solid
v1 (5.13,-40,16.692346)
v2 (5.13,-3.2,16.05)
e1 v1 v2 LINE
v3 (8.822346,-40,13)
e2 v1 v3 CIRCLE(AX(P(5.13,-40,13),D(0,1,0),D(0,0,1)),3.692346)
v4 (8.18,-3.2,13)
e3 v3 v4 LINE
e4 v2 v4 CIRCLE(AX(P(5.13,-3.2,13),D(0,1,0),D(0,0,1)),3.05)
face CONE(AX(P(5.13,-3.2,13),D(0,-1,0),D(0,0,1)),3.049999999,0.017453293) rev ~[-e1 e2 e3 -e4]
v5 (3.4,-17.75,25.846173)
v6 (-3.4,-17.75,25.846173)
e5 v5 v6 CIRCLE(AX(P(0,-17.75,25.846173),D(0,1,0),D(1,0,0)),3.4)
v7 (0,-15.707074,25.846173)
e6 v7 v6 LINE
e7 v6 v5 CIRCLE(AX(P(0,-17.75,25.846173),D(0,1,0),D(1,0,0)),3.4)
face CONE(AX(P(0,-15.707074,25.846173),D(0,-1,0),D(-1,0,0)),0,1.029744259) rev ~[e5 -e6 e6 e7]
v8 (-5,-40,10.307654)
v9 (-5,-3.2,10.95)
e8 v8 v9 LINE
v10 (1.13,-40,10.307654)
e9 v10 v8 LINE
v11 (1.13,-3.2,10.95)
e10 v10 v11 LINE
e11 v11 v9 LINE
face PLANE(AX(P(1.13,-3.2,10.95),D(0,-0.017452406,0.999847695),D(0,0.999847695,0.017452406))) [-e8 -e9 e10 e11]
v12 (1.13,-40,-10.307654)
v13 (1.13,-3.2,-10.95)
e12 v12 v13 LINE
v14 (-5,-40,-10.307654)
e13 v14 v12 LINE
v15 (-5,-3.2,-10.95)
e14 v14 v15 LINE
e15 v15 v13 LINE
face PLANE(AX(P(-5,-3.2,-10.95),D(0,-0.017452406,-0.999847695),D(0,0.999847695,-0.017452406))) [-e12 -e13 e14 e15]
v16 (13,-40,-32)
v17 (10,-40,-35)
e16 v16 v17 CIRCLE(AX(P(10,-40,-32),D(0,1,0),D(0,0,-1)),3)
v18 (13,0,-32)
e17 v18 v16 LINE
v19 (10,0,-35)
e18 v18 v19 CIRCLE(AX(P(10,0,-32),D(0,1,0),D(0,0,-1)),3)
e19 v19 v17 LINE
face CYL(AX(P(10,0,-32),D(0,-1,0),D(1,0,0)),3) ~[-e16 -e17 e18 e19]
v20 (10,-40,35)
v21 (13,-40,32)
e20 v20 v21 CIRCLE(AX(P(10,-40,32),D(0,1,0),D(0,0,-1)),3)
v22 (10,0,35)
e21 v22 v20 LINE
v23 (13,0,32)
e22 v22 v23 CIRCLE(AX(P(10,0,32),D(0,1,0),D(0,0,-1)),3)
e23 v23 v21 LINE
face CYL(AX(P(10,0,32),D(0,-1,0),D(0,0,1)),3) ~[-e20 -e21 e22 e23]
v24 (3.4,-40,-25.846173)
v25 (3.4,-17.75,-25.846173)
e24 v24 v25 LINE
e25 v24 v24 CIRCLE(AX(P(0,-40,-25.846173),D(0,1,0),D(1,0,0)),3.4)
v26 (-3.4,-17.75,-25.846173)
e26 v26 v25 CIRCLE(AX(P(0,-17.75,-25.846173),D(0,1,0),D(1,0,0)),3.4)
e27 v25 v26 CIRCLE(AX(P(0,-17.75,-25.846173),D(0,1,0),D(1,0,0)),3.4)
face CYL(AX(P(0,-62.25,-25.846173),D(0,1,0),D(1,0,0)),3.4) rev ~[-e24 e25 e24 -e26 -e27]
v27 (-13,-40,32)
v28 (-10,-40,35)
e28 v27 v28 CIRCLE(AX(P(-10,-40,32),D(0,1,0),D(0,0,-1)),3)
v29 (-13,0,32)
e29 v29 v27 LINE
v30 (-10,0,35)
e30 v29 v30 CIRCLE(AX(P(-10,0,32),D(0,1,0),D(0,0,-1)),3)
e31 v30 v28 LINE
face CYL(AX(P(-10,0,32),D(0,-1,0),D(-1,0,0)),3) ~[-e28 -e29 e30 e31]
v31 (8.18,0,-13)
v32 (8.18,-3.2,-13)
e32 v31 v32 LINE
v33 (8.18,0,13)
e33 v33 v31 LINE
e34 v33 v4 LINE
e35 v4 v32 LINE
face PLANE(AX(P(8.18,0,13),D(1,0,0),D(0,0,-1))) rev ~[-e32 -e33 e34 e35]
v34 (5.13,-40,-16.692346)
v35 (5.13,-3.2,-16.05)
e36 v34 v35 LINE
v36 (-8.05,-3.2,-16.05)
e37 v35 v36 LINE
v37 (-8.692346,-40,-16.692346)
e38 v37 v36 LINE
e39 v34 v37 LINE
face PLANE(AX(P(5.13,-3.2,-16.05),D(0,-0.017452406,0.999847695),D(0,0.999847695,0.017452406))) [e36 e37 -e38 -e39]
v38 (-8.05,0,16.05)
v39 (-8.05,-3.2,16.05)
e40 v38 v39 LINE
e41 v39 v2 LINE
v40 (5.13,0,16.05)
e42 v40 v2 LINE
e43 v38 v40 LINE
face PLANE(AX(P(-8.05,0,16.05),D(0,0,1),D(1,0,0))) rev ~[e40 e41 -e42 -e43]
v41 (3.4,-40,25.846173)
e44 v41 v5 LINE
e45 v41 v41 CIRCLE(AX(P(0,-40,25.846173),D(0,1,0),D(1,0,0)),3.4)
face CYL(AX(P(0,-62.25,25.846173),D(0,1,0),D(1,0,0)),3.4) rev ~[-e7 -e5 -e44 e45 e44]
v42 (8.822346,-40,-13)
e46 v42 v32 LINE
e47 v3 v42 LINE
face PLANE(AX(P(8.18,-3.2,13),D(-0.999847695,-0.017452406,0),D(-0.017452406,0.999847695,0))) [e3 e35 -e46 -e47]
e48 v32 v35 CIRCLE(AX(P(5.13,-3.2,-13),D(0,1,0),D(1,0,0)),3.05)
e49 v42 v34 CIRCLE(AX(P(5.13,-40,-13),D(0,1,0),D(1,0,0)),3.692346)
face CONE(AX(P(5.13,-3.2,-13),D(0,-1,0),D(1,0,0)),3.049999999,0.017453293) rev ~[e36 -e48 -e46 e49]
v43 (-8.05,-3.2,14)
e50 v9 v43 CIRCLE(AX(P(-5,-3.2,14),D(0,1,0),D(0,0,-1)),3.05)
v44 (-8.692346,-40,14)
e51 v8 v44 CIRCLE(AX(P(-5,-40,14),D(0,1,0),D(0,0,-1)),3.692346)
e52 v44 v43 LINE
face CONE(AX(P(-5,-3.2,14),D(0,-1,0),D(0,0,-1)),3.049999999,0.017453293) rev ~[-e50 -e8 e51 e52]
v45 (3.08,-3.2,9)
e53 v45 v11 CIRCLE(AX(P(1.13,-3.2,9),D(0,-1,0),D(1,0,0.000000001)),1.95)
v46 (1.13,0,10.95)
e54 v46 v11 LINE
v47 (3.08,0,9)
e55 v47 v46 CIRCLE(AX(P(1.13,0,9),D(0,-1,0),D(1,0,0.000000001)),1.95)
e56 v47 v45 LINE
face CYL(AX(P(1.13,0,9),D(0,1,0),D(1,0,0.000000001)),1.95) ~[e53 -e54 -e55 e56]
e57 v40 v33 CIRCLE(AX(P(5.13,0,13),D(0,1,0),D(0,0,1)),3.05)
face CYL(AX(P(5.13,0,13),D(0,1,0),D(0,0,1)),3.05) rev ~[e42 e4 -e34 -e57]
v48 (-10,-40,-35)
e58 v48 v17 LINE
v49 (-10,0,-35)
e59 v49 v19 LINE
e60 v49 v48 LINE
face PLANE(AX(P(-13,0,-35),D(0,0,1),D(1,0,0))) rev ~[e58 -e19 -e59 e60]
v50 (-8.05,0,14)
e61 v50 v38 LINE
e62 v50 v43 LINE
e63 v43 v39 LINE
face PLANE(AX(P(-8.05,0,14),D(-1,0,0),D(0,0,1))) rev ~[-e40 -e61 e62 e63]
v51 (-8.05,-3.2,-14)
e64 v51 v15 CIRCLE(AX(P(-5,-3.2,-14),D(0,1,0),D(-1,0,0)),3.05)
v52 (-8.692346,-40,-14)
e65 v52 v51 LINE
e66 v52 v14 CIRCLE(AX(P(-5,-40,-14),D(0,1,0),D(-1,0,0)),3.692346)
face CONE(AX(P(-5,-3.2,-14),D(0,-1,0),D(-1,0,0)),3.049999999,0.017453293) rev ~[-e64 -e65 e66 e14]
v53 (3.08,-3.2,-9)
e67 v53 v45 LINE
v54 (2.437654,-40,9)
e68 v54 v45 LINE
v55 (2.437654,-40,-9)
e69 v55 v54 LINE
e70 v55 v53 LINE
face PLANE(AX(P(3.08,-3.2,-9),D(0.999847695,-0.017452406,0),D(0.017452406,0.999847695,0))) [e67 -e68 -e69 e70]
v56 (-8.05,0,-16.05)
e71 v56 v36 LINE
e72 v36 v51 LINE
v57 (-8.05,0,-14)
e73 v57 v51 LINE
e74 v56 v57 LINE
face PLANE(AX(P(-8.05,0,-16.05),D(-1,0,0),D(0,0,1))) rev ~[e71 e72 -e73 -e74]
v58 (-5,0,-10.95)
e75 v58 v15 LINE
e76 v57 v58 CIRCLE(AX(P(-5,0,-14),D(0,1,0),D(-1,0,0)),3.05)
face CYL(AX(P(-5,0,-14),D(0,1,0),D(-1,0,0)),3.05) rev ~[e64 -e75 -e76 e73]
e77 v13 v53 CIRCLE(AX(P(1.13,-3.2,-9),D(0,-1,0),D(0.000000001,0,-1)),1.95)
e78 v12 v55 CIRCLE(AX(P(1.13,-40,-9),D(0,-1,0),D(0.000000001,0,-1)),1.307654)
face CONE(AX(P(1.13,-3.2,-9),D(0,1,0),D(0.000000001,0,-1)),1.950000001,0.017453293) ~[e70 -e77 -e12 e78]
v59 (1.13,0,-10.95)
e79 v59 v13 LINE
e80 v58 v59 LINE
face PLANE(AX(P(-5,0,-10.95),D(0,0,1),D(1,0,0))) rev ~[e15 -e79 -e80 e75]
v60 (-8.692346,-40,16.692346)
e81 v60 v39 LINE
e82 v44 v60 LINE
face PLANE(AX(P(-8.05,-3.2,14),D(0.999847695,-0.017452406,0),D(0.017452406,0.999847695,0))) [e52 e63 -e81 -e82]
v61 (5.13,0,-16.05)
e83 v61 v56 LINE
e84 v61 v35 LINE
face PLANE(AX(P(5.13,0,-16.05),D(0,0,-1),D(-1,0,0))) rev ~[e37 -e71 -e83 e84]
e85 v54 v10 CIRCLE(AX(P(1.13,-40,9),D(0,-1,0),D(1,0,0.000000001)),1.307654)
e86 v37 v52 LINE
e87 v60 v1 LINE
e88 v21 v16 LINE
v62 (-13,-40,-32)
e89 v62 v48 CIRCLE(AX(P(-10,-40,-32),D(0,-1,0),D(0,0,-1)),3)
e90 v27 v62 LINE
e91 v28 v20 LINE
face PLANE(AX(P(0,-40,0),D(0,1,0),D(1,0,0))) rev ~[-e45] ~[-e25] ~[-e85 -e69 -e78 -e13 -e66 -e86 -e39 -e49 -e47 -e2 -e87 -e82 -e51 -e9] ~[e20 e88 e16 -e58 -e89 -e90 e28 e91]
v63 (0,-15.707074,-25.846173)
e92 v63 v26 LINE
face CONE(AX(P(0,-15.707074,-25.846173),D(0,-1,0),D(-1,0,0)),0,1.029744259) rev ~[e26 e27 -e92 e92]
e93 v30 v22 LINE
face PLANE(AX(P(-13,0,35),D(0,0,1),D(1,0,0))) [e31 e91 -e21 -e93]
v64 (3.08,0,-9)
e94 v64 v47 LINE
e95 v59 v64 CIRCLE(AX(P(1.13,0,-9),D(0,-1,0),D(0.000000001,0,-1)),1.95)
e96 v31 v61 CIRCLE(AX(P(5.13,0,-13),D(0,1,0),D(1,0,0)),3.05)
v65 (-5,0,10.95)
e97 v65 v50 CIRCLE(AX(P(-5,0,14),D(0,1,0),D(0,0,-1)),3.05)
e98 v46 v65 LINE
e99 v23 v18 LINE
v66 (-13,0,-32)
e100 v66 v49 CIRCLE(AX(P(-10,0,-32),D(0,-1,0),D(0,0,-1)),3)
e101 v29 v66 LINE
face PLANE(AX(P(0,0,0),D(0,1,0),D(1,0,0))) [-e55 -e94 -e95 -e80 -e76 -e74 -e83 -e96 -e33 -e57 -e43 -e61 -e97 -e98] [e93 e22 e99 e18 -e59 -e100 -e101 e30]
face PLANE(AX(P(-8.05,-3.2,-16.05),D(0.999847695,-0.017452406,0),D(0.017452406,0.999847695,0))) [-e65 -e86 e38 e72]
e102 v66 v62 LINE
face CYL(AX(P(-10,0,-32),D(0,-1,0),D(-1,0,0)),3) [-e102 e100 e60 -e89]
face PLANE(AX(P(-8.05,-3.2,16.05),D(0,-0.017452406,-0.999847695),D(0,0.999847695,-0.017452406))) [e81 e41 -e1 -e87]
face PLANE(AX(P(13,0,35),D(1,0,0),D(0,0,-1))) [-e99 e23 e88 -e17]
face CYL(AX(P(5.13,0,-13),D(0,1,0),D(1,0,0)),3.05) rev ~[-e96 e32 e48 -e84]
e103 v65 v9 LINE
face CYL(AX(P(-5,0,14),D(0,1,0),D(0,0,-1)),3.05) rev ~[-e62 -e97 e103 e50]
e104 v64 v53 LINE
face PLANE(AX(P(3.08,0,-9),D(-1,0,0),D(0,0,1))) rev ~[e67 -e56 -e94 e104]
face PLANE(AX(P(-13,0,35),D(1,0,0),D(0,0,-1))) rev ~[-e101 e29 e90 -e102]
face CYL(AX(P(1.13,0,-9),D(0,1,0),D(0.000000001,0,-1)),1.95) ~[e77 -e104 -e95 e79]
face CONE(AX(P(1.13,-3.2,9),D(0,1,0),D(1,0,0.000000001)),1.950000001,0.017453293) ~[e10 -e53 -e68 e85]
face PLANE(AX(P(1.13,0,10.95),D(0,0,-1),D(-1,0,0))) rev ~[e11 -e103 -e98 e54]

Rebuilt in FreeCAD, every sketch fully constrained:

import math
import FreeCAD as App
import Part
import Sketcher

V = App.Vector
Q = App.Units.Quantity


def edges_at(feature, points):
    """Names of the edges that pass closest to the given points."""
    edges = feature.Shape.Edges
    near = lambda p: min(range(len(edges)), key=lambda i: edges[i].distToShape(Part.Vertex(*p))[0])
    return sorted({f"Edge{near(p) + 1}" for p in points})


def add_polygon(sketch, points):
    """Adds a closed chain of lines whose ends are joined by coincident constraints."""
    first, n = sketch.GeometryCount, len(points)
    for a, b in zip(points, points[1:] + points[:1]):
        sketch.addGeometry(Part.LineSegment(App.Vector(*a, 0), App.Vector(*b, 0)), False)
    for i in range(n):
        sketch.addConstraint(Sketcher.Constraint("Coincident", first + i, 2, first + (i + 1) % n, 1))

doc = App.newDocument("Part")
params = doc.addObject("Spreadsheet::Sheet", "Params")
for row, (alias, value) in enumerate([
    ("sketch1_width", "26 mm"),
    ("sketch1_height", "70 mm"),
    ("pad1_length", "40 mm"),
    ("fillet_radius", "3 mm"),
    ("sketch2_height", "18 mm"),
    ("sketch2_height2", "26 mm"),
    ("sketch2_radius", "1.95 mm"),
    ("sketch2_radius2", "3.05 mm"),
    ("sketch2_width", "6.13 mm"),
    ("sketch3_height", "36.8 mm"),
    ("sketch4_height", "26 mm"),
    ("sketch4_height2", "18 mm"),
    ("sketch4_radius", "3.05 mm"),
    ("sketch4_radius2", "1.95 mm"),
    ("sketch4_width", "13.18 mm"),
    ("sketch5_diameter", "6.8 mm"),
    ("hole_diameter", "6.8 mm"),
    ("hole_depth", "22.25 mm"),
], start=1):
    params.set(f"A{row}", alias)
    params.set(f"B{row}", "=" + value)
    params.setAlias(f"B{row}", alias)

body = doc.addObject("PartDesign::Body", "Body")

sketch1 = body.newObject("Sketcher::SketchObject", "Sketch")
sketch1.AttachmentSupport = (doc.getObject("XZ_Plane"), [""])
sketch1.MapMode = "FlatFace"
add_polygon(sketch1, [(-13, -35), (-13, 35), (13, 35), (13, -35)])
sketch1.addConstraint([
    Sketcher.Constraint("Vertical", 0),
    Sketcher.Constraint("Horizontal", 1),
    Sketcher.Constraint("Vertical", 2),
    Sketcher.Constraint("Horizontal", 3),
    Sketcher.Constraint("Symmetric", 0, 2, 2, 2, -1, 1),
    Sketcher.Constraint("DistanceX", 1, 1, 1, 2, Q("26 mm")),
    Sketcher.Constraint("DistanceY", 0, 1, 0, 2, Q("70 mm")),
])
sketch1.setExpression("Constraints[9]", "Params.sketch1_width")
sketch1.setExpression("Constraints[10]", "Params.sketch1_height")
pad1 = body.newObject("PartDesign::Pad", "Pad")
pad1.Profile = sketch1
pad1.setExpression("Length", "Params.pad1_length")
doc.recompute()

fillet = body.newObject("PartDesign::Fillet", "Fillet")
fillet.Base = (pad1, edges_at(pad1, [
    (13, -20, 35),
    (-13, -20, 35),
    (-13, -20, -35),
    (13, -20, -35),
]))
fillet.setExpression("Radius", "Params.fillet_radius")

sketch2 = body.newObject("Sketcher::SketchObject", "Sketch001")
sketch2.AttachmentSupport = (doc.getObject("XZ_Plane"), [""])
sketch2.MapMode = "FlatFace"
sketch2.addGeometry([
    Part.LineSegment(V(3.1, -9, 0), V(3.1, 9, 0)),
    Part.ArcOfCircle(Part.Circle(V(1.1, 9, 0), V(0, 0, 1), 2), math.radians(0), math.radians(90)),
    Part.LineSegment(V(1.1, 10.9, 0), V(-5, 10.9, 0)),
    Part.ArcOfCircle(Part.Circle(V(-5, 14, 0), V(0, 0, 1), 3), math.radians(180), math.radians(270)),
    Part.LineSegment(V(-8.1, 14, 0), V(-8.1, 16.1, 0)),
    Part.LineSegment(V(-8.1, 16.1, 0), V(5.1, 16.1, 0)),
    Part.ArcOfCircle(Part.Circle(V(5.1, 13, 0), V(0, 0, 1), 3), math.radians(0), math.radians(90)),
    Part.LineSegment(V(8.2, 13, 0), V(8.2, -13, 0)),
    Part.ArcOfCircle(Part.Circle(V(5.1, -13, 0), V(0, 0, 1), 3), math.radians(-90), math.radians(0)),
    Part.LineSegment(V(5.1, -16.1, 0), V(-8.1, -16.1, 0)),
    Part.LineSegment(V(-8.1, -16.1, 0), V(-8.1, -14, 0)),
    Part.ArcOfCircle(Part.Circle(V(-5, -14, 0), V(0, 0, 1), 3), math.radians(90), math.radians(180)),
    Part.LineSegment(V(-5, -10.9, 0), V(1.1, -10.9, 0)),
    Part.ArcOfCircle(Part.Circle(V(1.1, -9, 0), V(0, 0, 1), 2), math.radians(-90), math.radians(0)),
], False)
sketch2.addConstraint([
    Sketcher.Constraint("Tangent", 0, 2, 1, 1),
    Sketcher.Constraint("Tangent", 1, 2, 2, 1),
    Sketcher.Constraint("Tangent", 2, 2, 3, 2),
    Sketcher.Constraint("Tangent", 3, 1, 4, 1),
    Sketcher.Constraint("Coincident", 4, 2, 5, 1),
    Sketcher.Constraint("Tangent", 5, 2, 6, 2),
    Sketcher.Constraint("Tangent", 6, 1, 7, 1),
    Sketcher.Constraint("Tangent", 7, 2, 8, 2),
    Sketcher.Constraint("Tangent", 8, 1, 9, 1),
    Sketcher.Constraint("Coincident", 9, 2, 10, 1),
    Sketcher.Constraint("Tangent", 10, 2, 11, 2),
    Sketcher.Constraint("Tangent", 11, 1, 12, 1),
    Sketcher.Constraint("Tangent", 12, 2, 13, 1),
    Sketcher.Constraint("Tangent", 13, 2, 0, 1),
    Sketcher.Constraint("Vertical", 0),
    Sketcher.Constraint("Horizontal", 2),
    Sketcher.Constraint("Vertical", 4),
    Sketcher.Constraint("Horizontal", 5),
    Sketcher.Constraint("Vertical", 7),
    Sketcher.Constraint("Horizontal", 9),
    Sketcher.Constraint("Vertical", 10),
    Sketcher.Constraint("Horizontal", 12),
    Sketcher.Constraint("Equal", 3, 6),
    Sketcher.Constraint("Equal", 6, 8),
    Sketcher.Constraint("Equal", 8, 11),
    Sketcher.Constraint("Equal", 1, 13),
    Sketcher.Constraint("Symmetric", 3, 3, 11, 3, -1),
    Sketcher.Constraint("Equal", 4, 10),
    Sketcher.Constraint("DistanceY", 0, 1, 0, 2, Q("18 mm")),
    Sketcher.Constraint("DistanceY", 7, 2, 7, 1, Q("26 mm")),
    Sketcher.Constraint("Radius", 1, Q("1.95 mm")),
    Sketcher.Constraint("Radius", 3, Q("3.05 mm")),
    Sketcher.Constraint("DistanceX", 3, 3, -1, 1, Q("5 mm")),
    Sketcher.Constraint("DistanceX", 1, 3, 6, 3, Q("4 mm")),
    Sketcher.Constraint("DistanceX", 2, 2, 2, 1, Q("6.13 mm")),
])
sketch2.setExpression("Constraints[28]", "Params.sketch2_height")
sketch2.setExpression("Constraints[29]", "Params.sketch2_height2")
sketch2.setExpression("Constraints[30]", "Params.sketch2_radius")
sketch2.setExpression("Constraints[31]", "Params.sketch2_radius2")
sketch2.setExpression("Constraints[34]", "Params.sketch2_width")
pocket1 = body.newObject("PartDesign::Pocket", "Pocket")
pocket1.Profile = sketch2
pocket1.Type = "UpToFirst"
pocket1.Reversed = True

sketch3 = body.newObject("Sketcher::SketchObject", "Sketch002")
sketch3.AttachmentSupport = (doc.getObject("XY_Plane"), [""])
sketch3.MapMode = "FlatFace"
add_polygon(sketch3, [(8.8, -40), (8.2, -3.2), (8.2, -40)])
sketch3.addConstraint([
    Sketcher.Constraint("Vertical", 1),
    Sketcher.Constraint("Horizontal", 2),
    Sketcher.Constraint("Angle", 0, Q("91 deg")),
    Sketcher.Constraint("DistanceY", 1, 2, 1, 1, Q("36.8 mm")),
    Sketcher.Constraint("DistanceY", 1, 2, -1, 1, Q("40 mm")),
    Sketcher.Constraint("DistanceX", -1, 1, 0, 2, Q("8.18 mm")),
])
sketch3.setExpression("Constraints[6]", "Params.sketch3_height")

sketch4 = body.newObject("Sketcher::SketchObject", "Sketch003")
sketch4.AttachmentSupport = (doc.getObject("XZ_Plane"), [""])
sketch4.MapMode = "FlatFace"
sketch4.addGeometry([
    Part.LineSegment(V(-8.1, 14, 0), V(-8.1, 16.1, 0)),
    Part.LineSegment(V(-8.1, 16.1, 0), V(5.1, 16.1, 0)),
    Part.ArcOfCircle(Part.Circle(V(5.1, 13, 0), V(0, 0, 1), 3), math.radians(0), math.radians(90)),
    Part.LineSegment(V(8.2, 13, 0), V(8.2, -13, 0)),
    Part.ArcOfCircle(Part.Circle(V(5.1, -13, 0), V(0, 0, 1), 3), math.radians(-90), math.radians(0)),
    Part.LineSegment(V(5.1, -16.1, 0), V(-8.1, -16.1, 0)),
    Part.LineSegment(V(-8.1, -16.1, 0), V(-8.1, -14, 0)),
    Part.ArcOfCircle(Part.Circle(V(-5, -14, 0), V(0, 0, 1), 3), math.radians(90), math.radians(180)),
    Part.LineSegment(V(-5, -10.9, 0), V(1.1, -10.9, 0)),
    Part.ArcOfCircle(Part.Circle(V(1.1, -9, 0), V(0, 0, 1), 2), math.radians(-90), math.radians(0)),
    Part.LineSegment(V(3.1, -9, 0), V(3.1, 9, 0)),
    Part.ArcOfCircle(Part.Circle(V(1.1, 9, 0), V(0, 0, 1), 2), math.radians(0), math.radians(90)),
    Part.LineSegment(V(1.1, 10.9, 0), V(-5, 10.9, 0)),
    Part.ArcOfCircle(Part.Circle(V(-5, 14, 0), V(0, 0, 1), 3), math.radians(180), math.radians(270)),
], False)
sketch4.addConstraint([
    Sketcher.Constraint("Coincident", 0, 2, 1, 1),
    Sketcher.Constraint("Tangent", 1, 2, 2, 2),
    Sketcher.Constraint("Tangent", 2, 1, 3, 1),
    Sketcher.Constraint("Tangent", 3, 2, 4, 2),
    Sketcher.Constraint("Tangent", 4, 1, 5, 1),
    Sketcher.Constraint("Coincident", 5, 2, 6, 1),
    Sketcher.Constraint("Tangent", 6, 2, 7, 2),
    Sketcher.Constraint("Tangent", 7, 1, 8, 1),
    Sketcher.Constraint("Tangent", 8, 2, 9, 1),
    Sketcher.Constraint("Tangent", 9, 2, 10, 1),
    Sketcher.Constraint("Tangent", 10, 2, 11, 1),
    Sketcher.Constraint("Tangent", 11, 2, 12, 1),
    Sketcher.Constraint("Tangent", 12, 2, 13, 2),
    Sketcher.Constraint("Tangent", 13, 1, 0, 1),
    Sketcher.Constraint("Vertical", 0),
    Sketcher.Constraint("Horizontal", 1),
    Sketcher.Constraint("Vertical", 3),
    Sketcher.Constraint("Horizontal", 5),
    Sketcher.Constraint("Vertical", 6),
    Sketcher.Constraint("Horizontal", 8),
    Sketcher.Constraint("Vertical", 10),
    Sketcher.Constraint("Horizontal", 12),
    Sketcher.Constraint("Equal", 2, 4),
    Sketcher.Constraint("Equal", 4, 7),
    Sketcher.Constraint("Equal", 9, 11),
    Sketcher.Constraint("Equal", 7, 13),
    Sketcher.Constraint("Symmetric", 7, 3, 13, 3, -1),
    Sketcher.Constraint("Equal", 0, 6),
    Sketcher.Constraint("DistanceY", 3, 2, 3, 1, Q("26 mm")),
    Sketcher.Constraint("DistanceY", 10, 1, 10, 2, Q("18 mm")),
    Sketcher.Constraint("Radius", 2, Q("3.05 mm")),
    Sketcher.Constraint("Radius", 9, Q("1.95 mm")),
    Sketcher.Constraint("DistanceX", 7, 3, -1, 1, Q("5 mm")),
    Sketcher.Constraint("DistanceX", 9, 3, 4, 3, Q("4 mm")),
    Sketcher.Constraint("DistanceX", 1, 1, 1, 2, Q("13.18 mm")),
])
sketch4.setExpression("Constraints[28]", "Params.sketch4_height")
sketch4.setExpression("Constraints[29]", "Params.sketch4_height2")
sketch4.setExpression("Constraints[30]", "Params.sketch4_radius")
sketch4.setExpression("Constraints[31]", "Params.sketch4_radius2")
sketch4.setExpression("Constraints[34]", "Params.sketch4_width")
doc.recompute()

subtractivepipe = body.newObject("PartDesign::SubtractivePipe", "SubtractivePipe")
subtractivepipe.Profile = sketch3
subtractivepipe.Spine = (sketch4, ["Edge1", "Edge2", "Edge3", "Edge4", "Edge5", "Edge6", "Edge7", "Edge8", "Edge9", "Edge10", "Edge11", "Edge12", "Edge13", "Edge14"])
subtractivepipe.Transition = "Right corner"

sketch5 = body.newObject("Sketcher::SketchObject", "Sketch004")
sketch5.AttachmentSupport = (doc.getObject("XZ_Plane"), [""])
sketch5.MapMode = "FlatFace"
sketch5.AttachmentOffset = App.Placement(V(0, 0, 40), App.Rotation())
sketch5.addGeometry([
    Part.Circle(V(0, 25.8, 0), V(0, 0, 1), 3.4),
    Part.Circle(V(0, -25.8, 0), V(0, 0, 1), 3.4),
], False)
sketch5.addConstraint([
    Sketcher.Constraint("Equal", 0, 1),
    Sketcher.Constraint("Symmetric", 0, 3, 1, 3, -1, 1),
    Sketcher.Constraint("PointOnObject", 0, 3, -2),
    Sketcher.Constraint("Diameter", 0, Q("6.8 mm")),
    Sketcher.Constraint("DistanceY", -1, 1, 0, 3, Q("25.846173 mm")),
])
sketch5.setExpression("Constraints[3]", "Params.sketch5_diameter")
doc.recompute()
hole = body.newObject("PartDesign::Hole", "Hole")
hole.Profile = sketch5
hole.ThreadType = "None"
hole.setExpression("Diameter", "Params.hole_diameter")
hole.DepthType = "Dimension"
hole.setExpression("Depth", "Params.hole_depth")
hole.DrillPoint = "Angled"
hole.DrillPointAngle = 118

doc.recompute()
